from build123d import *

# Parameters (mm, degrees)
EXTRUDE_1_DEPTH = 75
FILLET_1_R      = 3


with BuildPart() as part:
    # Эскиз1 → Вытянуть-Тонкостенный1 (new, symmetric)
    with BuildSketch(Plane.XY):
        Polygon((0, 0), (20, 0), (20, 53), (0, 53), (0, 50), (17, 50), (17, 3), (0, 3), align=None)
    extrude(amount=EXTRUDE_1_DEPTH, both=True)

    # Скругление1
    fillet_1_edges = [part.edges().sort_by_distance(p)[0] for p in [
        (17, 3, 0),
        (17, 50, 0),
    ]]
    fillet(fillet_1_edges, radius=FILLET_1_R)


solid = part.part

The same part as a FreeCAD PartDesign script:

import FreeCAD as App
import Part
import Sketcher
from FreeCAD import Vector
Q = App.Units.Quantity


def edges_at(feature, points):
    """Names of the edges that pass closest to the given points."""
    edges = feature.Shape.Edges
    near = lambda p: min(range(len(edges)), key=lambda i: edges[i].distToShape(Part.Vertex(*p))[0])
    return sorted({f"Edge{near(p) + 1}" for p in points})


def add_polygon(sketch, points):
    """Adds a closed chain of lines whose ends are joined by coincident constraints."""
    first, n = sketch.GeometryCount, len(points)
    for a, b in zip(points, points[1:] + points[:1]):
        sketch.addGeometry(Part.LineSegment(App.Vector(*a, 0), App.Vector(*b, 0)), False)
    for i in range(n):
        sketch.addConstraint(Sketcher.Constraint("Coincident", first + i, 2, first + (i + 1) % n, 1))

doc = App.newDocument("Part")
body = doc.addObject("PartDesign::Body", "Body")

sketch1 = body.newObject("Sketcher::SketchObject", "Sketch")
sketch1.AttachmentSupport = (doc.getObject("XY_Plane"), [""])
sketch1.MapMode = "FlatFace"
add_polygon(sketch1, [(0, 0), (20, 0), (20, 53), (0, 53), (0, 50), (17, 50), (17, 3), (0, 3)])
sketch1.addConstraint([
    Sketcher.Constraint("Horizontal", 0),
    Sketcher.Constraint("Vertical", 1),
    Sketcher.Constraint("Horizontal", 2),
    Sketcher.Constraint("Vertical", 3),
    Sketcher.Constraint("Horizontal", 4),
    Sketcher.Constraint("Vertical", 5),
    Sketcher.Constraint("Horizontal", 6),
    Sketcher.Constraint("Vertical", 7),
    Sketcher.Constraint("Coincident", 7, 2, -1, 1),
    Sketcher.Constraint("PointOnObject", 2, 2, -2),
    Sketcher.Constraint("Equal", 3, 7),
    Sketcher.Constraint("DistanceX", 0, 1, 0, 2, Q("20 mm")),
    Sketcher.Constraint("DistanceX", 4, 1, 4, 2, Q("17 mm")),
    Sketcher.Constraint("DistanceY", 1, 1, 1, 2, Q("53 mm")),
    Sketcher.Constraint("DistanceY", 3, 2, 3, 1, Q("3 mm")),
])
pad1 = body.newObject("PartDesign::Pad", "Pad")
pad1.Profile = sketch1
pad1.Length = 150
pad1.Midplane = True
doc.recompute()

fillet = body.newObject("PartDesign::Fillet", "Fillet")
fillet.Base = (pad1, edges_at(pad1, [(17, 3, 0), (17, 50, 0)]))
fillet.Radius = 3

doc.recompute()
